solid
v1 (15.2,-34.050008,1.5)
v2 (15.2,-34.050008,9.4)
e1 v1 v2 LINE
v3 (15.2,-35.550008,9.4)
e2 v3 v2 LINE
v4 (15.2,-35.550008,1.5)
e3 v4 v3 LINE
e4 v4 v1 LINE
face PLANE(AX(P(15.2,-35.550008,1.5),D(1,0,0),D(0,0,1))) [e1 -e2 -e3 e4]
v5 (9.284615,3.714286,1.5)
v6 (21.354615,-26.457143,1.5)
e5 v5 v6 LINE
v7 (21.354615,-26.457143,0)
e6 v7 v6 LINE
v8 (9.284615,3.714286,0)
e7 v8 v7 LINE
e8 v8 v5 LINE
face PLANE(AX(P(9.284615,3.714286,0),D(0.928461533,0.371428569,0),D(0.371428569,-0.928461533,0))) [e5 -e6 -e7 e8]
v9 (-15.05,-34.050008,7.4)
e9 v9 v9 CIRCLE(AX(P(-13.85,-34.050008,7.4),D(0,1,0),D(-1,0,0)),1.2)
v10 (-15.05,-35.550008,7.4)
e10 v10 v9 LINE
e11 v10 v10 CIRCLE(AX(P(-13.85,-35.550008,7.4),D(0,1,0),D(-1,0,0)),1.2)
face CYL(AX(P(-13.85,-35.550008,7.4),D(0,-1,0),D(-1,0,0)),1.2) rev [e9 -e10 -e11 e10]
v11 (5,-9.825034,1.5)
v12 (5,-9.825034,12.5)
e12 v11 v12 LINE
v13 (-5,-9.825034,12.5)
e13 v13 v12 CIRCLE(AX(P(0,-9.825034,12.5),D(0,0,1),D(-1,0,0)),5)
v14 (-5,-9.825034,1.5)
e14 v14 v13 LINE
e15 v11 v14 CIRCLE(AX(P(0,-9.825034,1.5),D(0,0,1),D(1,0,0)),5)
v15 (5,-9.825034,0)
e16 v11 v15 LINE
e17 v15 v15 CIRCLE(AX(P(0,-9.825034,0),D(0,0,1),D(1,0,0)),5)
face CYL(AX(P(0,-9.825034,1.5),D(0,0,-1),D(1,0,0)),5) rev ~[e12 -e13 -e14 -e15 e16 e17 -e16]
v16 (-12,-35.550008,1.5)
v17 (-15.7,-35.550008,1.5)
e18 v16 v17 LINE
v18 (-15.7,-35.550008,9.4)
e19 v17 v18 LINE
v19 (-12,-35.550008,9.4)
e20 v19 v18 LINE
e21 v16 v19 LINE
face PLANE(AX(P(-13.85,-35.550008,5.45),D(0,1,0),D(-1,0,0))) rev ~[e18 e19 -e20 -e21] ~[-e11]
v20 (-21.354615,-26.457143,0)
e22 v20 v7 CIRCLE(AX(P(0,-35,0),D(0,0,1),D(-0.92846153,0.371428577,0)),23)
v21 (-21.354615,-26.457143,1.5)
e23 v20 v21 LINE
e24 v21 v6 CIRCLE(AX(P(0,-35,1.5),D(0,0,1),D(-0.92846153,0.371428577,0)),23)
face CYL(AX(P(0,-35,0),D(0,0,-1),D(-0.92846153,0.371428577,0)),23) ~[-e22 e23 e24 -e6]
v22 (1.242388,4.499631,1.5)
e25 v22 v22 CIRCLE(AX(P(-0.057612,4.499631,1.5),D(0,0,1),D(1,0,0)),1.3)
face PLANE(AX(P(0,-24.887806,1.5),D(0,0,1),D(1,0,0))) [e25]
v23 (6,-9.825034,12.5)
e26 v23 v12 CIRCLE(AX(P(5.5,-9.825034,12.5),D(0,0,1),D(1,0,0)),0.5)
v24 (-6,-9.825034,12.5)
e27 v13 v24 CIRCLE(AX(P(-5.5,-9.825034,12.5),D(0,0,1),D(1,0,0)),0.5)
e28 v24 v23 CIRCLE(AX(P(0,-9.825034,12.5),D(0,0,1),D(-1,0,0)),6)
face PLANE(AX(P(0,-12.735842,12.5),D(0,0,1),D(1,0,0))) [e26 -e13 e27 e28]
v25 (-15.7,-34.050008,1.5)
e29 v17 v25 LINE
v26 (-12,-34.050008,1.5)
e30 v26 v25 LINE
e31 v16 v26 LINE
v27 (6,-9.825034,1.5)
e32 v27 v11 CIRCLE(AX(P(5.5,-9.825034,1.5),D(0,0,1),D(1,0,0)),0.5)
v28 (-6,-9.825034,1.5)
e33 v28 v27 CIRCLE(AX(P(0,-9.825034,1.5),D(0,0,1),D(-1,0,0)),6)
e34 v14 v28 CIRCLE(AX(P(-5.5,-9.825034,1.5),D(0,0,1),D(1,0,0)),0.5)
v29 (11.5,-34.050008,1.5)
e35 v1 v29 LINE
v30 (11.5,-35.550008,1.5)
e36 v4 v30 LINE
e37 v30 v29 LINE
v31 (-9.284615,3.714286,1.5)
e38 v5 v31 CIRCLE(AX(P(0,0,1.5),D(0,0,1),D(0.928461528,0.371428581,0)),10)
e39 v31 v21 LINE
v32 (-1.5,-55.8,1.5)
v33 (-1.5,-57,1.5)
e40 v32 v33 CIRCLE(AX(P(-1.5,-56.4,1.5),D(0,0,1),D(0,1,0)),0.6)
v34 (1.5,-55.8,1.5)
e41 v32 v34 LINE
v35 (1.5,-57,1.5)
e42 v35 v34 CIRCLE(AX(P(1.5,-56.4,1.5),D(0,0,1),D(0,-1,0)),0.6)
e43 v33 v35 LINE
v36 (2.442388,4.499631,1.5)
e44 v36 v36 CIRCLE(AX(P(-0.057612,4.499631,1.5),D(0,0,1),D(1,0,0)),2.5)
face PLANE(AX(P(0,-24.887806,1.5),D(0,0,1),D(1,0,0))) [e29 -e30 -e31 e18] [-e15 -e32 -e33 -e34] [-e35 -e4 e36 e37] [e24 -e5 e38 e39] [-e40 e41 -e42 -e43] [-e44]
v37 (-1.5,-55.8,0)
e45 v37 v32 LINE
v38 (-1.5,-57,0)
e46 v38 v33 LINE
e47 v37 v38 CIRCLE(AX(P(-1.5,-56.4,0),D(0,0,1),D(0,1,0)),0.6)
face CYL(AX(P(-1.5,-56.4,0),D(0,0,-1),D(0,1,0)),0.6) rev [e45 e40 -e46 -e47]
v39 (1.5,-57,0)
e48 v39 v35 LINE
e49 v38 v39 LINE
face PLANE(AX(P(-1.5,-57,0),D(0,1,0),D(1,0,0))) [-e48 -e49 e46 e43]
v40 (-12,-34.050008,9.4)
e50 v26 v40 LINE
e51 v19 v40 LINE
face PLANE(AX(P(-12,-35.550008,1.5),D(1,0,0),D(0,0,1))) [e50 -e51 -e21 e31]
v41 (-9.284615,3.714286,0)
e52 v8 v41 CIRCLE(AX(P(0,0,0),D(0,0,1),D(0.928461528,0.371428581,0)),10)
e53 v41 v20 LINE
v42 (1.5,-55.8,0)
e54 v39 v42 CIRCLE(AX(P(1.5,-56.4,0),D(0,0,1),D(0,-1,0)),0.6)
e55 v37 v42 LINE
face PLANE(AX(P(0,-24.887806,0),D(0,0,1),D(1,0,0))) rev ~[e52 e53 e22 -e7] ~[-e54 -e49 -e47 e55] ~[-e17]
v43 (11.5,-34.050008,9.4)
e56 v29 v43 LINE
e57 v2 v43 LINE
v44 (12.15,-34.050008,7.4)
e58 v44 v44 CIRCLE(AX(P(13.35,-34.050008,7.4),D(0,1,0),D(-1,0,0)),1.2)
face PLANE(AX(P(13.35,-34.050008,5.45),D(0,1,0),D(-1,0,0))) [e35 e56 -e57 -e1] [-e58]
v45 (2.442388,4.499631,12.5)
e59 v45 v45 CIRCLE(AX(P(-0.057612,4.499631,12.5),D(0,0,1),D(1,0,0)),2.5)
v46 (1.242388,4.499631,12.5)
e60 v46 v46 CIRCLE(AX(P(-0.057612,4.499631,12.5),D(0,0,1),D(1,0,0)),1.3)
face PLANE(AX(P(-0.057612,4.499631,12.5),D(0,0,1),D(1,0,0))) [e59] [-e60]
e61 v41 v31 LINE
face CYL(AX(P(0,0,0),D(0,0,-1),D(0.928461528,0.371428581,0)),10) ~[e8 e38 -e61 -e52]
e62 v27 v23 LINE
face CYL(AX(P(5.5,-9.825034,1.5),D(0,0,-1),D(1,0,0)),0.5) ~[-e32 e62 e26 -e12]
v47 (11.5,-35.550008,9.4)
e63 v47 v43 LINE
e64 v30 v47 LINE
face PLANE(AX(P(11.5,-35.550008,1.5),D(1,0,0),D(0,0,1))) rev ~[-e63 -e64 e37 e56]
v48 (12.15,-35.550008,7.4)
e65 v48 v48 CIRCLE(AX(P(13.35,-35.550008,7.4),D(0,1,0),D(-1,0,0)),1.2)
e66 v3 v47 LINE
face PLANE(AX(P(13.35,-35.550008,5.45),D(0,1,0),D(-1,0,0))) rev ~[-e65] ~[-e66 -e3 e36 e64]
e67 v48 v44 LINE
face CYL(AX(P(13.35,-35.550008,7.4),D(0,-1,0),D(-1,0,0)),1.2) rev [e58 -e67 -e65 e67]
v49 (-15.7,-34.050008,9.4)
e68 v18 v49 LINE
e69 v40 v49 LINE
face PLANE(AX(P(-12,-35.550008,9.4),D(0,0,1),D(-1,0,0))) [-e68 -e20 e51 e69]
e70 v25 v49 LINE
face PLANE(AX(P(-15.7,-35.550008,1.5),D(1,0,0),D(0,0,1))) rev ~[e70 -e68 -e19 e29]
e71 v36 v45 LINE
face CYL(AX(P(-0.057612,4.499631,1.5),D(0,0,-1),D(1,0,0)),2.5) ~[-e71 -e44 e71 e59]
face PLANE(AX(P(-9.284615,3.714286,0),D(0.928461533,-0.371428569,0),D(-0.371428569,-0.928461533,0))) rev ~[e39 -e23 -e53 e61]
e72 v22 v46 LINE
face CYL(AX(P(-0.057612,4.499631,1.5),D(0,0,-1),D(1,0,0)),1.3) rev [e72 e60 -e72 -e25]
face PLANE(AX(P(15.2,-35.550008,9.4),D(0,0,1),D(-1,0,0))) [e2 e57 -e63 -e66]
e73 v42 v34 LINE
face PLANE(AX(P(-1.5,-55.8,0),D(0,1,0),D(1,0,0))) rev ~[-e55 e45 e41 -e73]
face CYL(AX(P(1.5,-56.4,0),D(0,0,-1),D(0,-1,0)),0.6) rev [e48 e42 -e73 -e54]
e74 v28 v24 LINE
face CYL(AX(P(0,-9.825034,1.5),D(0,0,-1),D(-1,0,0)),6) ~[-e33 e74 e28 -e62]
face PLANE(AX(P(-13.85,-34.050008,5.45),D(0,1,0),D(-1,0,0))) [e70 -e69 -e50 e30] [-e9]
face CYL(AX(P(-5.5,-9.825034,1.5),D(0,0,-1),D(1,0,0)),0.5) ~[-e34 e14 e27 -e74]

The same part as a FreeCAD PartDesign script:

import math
import FreeCAD as App
import Part
import Sketcher
from FreeCAD import Vector

doc = App.newDocument("Part")
body = doc.addObject("PartDesign::Body", "Body")

sketch1 = body.newObject("Sketcher::SketchObject", "Sketch")
sketch1.AttachmentSupport = (doc.getObject("XY_Plane"), [""])
sketch1.MapMode = "FlatFace"
sketch1.addGeometry([
    Part.ArcOfCircle(Part.Circle(Vector(0, 0, 0), Vector(0, 0, 1), 10), math.radians(22), math.radians(158)),
    Part.LineSegment(Vector(-9.3, 3.7, 0), Vector(-21.4, -26.5, 0)),
    Part.ArcOfCircle(Part.Circle(Vector(0, -35, 0), Vector(0, 0, 1), 23), math.radians(158), math.radians(382)),
    Part.LineSegment(Vector(21.4, -26.5, 0), Vector(9.3, 3.7, 0)),
    Part.ArcOfCircle(Part.Circle(Vector(-1.5, -56.4, 0), Vector(0, 0, 1), 0.6), math.radians(90), math.radians(270)),
    Part.LineSegment(Vector(-1.5, -55.8, 0), Vector(1.5, -55.8, 0)),
    Part.ArcOfCircle(Part.Circle(Vector(1.5, -56.4, 0), Vector(0, 0, 1), 0.6), math.radians(-90), math.radians(90)),
    Part.LineSegment(Vector(1.5, -57, 0), Vector(-1.5, -57, 0)),
], False)
sketch1.addConstraint([
    Sketcher.Constraint("Tangent", 0, 2, 1, 1),
    Sketcher.Constraint("Tangent", 1, 2, 2, 1),
    Sketcher.Constraint("Tangent", 2, 2, 3, 1),
    Sketcher.Constraint("Tangent", 3, 2, 0, 1),
    Sketcher.Constraint("Tangent", 4, 1, 5, 1),
    Sketcher.Constraint("Tangent", 5, 2, 6, 2),
    Sketcher.Constraint("Tangent", 6, 1, 7, 1),
    Sketcher.Constraint("Tangent", 7, 2, 4, 2),
    Sketcher.Constraint("Horizontal", 5),
    Sketcher.Constraint("Horizontal", 7),
    Sketcher.Constraint("Coincident", 0, 3, -1, 1),
    Sketcher.Constraint("PointOnObject", 2, 3, -2),
    Sketcher.Constraint("Radius", 0, 10.0),
    Sketcher.Constraint("Radius", 2, 23.0),
    Sketcher.Constraint("Radius", 4, 0.6),
    Sketcher.Constraint("DistanceX", 5, 1, 5, 2, 3.0),
    Sketcher.Constraint("DistanceY", 2, 3, -1, 1, 35.0),
    Sketcher.Constraint("DistanceY", 6, 1, -1, 1, 57.0),
    Sketcher.Constraint("DistanceX", 4, 3, -1, 1, 1.5),
])
pad1 = body.newObject("PartDesign::Pad", "Pad")
pad1.Profile = sketch1
pad1.Length = 1.5

sketch2 = body.newObject("Sketcher::SketchObject", "Sketch001")
sketch2.AttachmentSupport = (doc.getObject("XY_Plane"), [""])
sketch2.MapMode = "FlatFace"
sketch2.AttachmentOffset = App.Placement(Vector(0, 0, 1.5), App.Rotation())
sketch2.addGeometry([
    Part.Circle(Vector(-0.1, 4.5, 0), Vector(0, 0, 1), 2.5),
    Part.Circle(Vector(-0.1, 4.5, 0), Vector(0, 0, 1), 1.3),
], False)
sketch2.addConstraint([
    Sketcher.Constraint("Coincident", 1, 3, 0, 3),
    Sketcher.Constraint("Diameter", 0, 5.0),
    Sketcher.Constraint("Diameter", 1, 2.6),
    Sketcher.Constraint("DistanceX", 0, 3, -1, 1, 0.057612),
    Sketcher.Constraint("DistanceY", -1, 1, 0, 3, 4.499631),
])
pad2 = body.newObject("PartDesign::Pad", "Pad001")
pad2.Profile = sketch2
pad2.Length = 11

sketch3 = body.newObject("Sketcher::SketchObject", "Sketch002")
sketch3.AttachmentSupport = (doc.getObject("XY_Plane"), [""])
sketch3.MapMode = "FlatFace"
sketch3.AttachmentOffset = App.Placement(Vector(0, 0, 1.5), App.Rotation())
sketch3.addGeometry(Part.Circle(Vector(0, -10, 0), Vector(0, 0, 1), 5), False)
sketch3.addConstraint([
    Sketcher.Constraint("PointOnObject", 0, 3, -2),
    Sketcher.Constraint("Diameter", 0, 10.0),
    Sketcher.Constraint("DistanceY", 0, 3, -1, 1, 9.825034),
])
pocket1 = body.newObject("PartDesign::Pocket", "Pocket")
pocket1.Profile = sketch3
pocket1.Length = 5

sketch4 = body.newObject("Sketcher::SketchObject", "Sketch003")
sketch4.AttachmentSupport = (doc.getObject("XY_Plane"), [""])
sketch4.MapMode = "FlatFace"
sketch4.AttachmentOffset = App.Placement(Vector(0, 0, 1.5), App.Rotation())
sketch4.addGeometry([
    Part.ArcOfCircle(Part.Circle(Vector(0, -9.8, 0), Vector(0, 0, 1), 6), math.radians(180), math.radians(360)),
    Part.ArcOfCircle(Part.Circle(Vector(5.5, -9.8, 0), Vector(0, 0, 1), 0.5), math.radians(0), math.radians(180)),
    Part.ArcOfCircle(Part.Circle(Vector(0, -9.8, 0), Vector(0, 0, 1), 5), math.radians(180), math.radians(360)),
    Part.ArcOfCircle(Part.Circle(Vector(-5.5, -9.8, 0), Vector(0, 0, 1), 0.5), math.radians(0), math.radians(180)),
], False)
sketch4.addConstraint([
    Sketcher.Constraint("Tangent", 0, 2, 1, 1),
    Sketcher.Constraint("Tangent", 1, 2, 2, 2),
    Sketcher.Constraint("Tangent", 2, 1, 3, 1),
    Sketcher.Constraint("Tangent", 3, 2, 0, 1),
    Sketcher.Constraint("Coincident", 2, 3, 0, 3),
    Sketcher.Constraint("Symmetric", 1, 3, 3, 3, -2),
    Sketcher.Constraint("Horizontal", 0, 3, 1, 3),
    Sketcher.Constraint("Radius", 0, 6.0),
    Sketcher.Constraint("Radius", 2, 5.0),
    Sketcher.Constraint("DistanceY", 0, 3, -1, 1, 9.825034),
])
pad3 = body.newObject("PartDesign::Pad", "Pad002")
pad3.Profile = sketch4
pad3.Length = 11
doc.recompute()

mirrored = body.newObject("PartDesign::Mirrored", "Mirrored")
mirrored.Originals = [pad3]
mirrored.MirrorPlane = (doc.getObject("YZ_Plane"), [""])
body.Tip = mirrored

sketch5 = body.newObject("Sketcher::SketchObject", "Sketch004")
sketch5.AttachmentSupport = (doc.getObject("XZ_Plane"), [""])
sketch5.MapMode = "FlatFace"
sketch5.AttachmentOffset = App.Placement(Vector(0, 0, 35.550008), App.Rotation())
sketch5.addGeometry([
    Part.LineSegment(Vector(15.2, 9.4, 0), Vector(15.2, 1.5, 0)),
    Part.LineSegment(Vector(15.2, 1.5, 0), Vector(11.5, 1.5, 0)),
    Part.LineSegment(Vector(11.5, 1.5, 0), Vector(11.5, 9.4, 0)),
    Part.LineSegment(Vector(11.5, 9.4, 0), Vector(15.2, 9.4, 0)),
    Part.Circle(Vector(13.3, 7.4, 0), Vector(0, 0, 1), 1.2),
    Part.LineSegment(Vector(-12, 9.4, 0), Vector(-12, 1.5, 0)),
    Part.LineSegment(Vector(-12, 1.5, 0), Vector(-15.7, 1.5, 0)),
    Part.LineSegment(Vector(-15.7, 1.5, 0), Vector(-15.7, 9.4, 0)),
    Part.LineSegment(Vector(-15.7, 9.4, 0), Vector(-12, 9.4, 0)),
    Part.Circle(Vector(-13.8, 7.4, 0), Vector(0, 0, 1), 1.2),
], False)
sketch5.addConstraint([
    Sketcher.Constraint("Coincident", 0, 2, 1, 1),
    Sketcher.Constraint("Coincident", 1, 2, 2, 1),
    Sketcher.Constraint("Coincident", 2, 2, 3, 1),
    Sketcher.Constraint("Coincident", 3, 2, 0, 1),
    Sketcher.Constraint("Coincident", 5, 2, 6, 1),
    Sketcher.Constraint("Coincident", 6, 2, 7, 1),
    Sketcher.Constraint("Coincident", 7, 2, 8, 1),
    Sketcher.Constraint("Coincident", 8, 2, 5, 1),
    Sketcher.Constraint("Vertical", 0),
    Sketcher.Constraint("Horizontal", 1),
    Sketcher.Constraint("Vertical", 2),
    Sketcher.Constraint("Horizontal", 3),
    Sketcher.Constraint("Vertical", 5),
    Sketcher.Constraint("Horizontal", 6),
    Sketcher.Constraint("Vertical", 7),
    Sketcher.Constraint("Horizontal", 8),
    Sketcher.Constraint("Equal", 4, 9),
    Sketcher.Constraint("Horizontal", 4, 3, 9, 3),
    Sketcher.Constraint("Horizontal", 1, 2, 5, 2),
    Sketcher.Constraint("Horizontal", 3, 2, 7, 2),
    Sketcher.Constraint("Equal", 3, 6),
    Sketcher.Constraint("Diameter", 4, 2.4),
    Sketcher.Constraint("DistanceX", 1, 2, 1, 1, 3.7),
    Sketcher.Constraint("DistanceY", 0, 2, 0, 1, 7.9),
    Sketcher.Constraint("DistanceX", 5, 2, -1, 1, 12.0),
    Sketcher.Constraint("DistanceY", 4, 3, 2, 2, 2.0),
    Sketcher.Constraint("DistanceY", -1, 1, 4, 3, 7.4),
    Sketcher.Constraint("DistanceX", -1, 1, 0, 2, 15.2),
    Sketcher.Constraint("DistanceX", 9, 3, 4, 3, 27.2),
    Sketcher.Constraint("DistanceX", -1, 1, 4, 3, 13.35),
])
pad4 = body.newObject("PartDesign::Pad", "Pad003")
pad4.Profile = sketch5
pad4.Length = 1.5
pad4.Reversed = True

doc.recompute()
